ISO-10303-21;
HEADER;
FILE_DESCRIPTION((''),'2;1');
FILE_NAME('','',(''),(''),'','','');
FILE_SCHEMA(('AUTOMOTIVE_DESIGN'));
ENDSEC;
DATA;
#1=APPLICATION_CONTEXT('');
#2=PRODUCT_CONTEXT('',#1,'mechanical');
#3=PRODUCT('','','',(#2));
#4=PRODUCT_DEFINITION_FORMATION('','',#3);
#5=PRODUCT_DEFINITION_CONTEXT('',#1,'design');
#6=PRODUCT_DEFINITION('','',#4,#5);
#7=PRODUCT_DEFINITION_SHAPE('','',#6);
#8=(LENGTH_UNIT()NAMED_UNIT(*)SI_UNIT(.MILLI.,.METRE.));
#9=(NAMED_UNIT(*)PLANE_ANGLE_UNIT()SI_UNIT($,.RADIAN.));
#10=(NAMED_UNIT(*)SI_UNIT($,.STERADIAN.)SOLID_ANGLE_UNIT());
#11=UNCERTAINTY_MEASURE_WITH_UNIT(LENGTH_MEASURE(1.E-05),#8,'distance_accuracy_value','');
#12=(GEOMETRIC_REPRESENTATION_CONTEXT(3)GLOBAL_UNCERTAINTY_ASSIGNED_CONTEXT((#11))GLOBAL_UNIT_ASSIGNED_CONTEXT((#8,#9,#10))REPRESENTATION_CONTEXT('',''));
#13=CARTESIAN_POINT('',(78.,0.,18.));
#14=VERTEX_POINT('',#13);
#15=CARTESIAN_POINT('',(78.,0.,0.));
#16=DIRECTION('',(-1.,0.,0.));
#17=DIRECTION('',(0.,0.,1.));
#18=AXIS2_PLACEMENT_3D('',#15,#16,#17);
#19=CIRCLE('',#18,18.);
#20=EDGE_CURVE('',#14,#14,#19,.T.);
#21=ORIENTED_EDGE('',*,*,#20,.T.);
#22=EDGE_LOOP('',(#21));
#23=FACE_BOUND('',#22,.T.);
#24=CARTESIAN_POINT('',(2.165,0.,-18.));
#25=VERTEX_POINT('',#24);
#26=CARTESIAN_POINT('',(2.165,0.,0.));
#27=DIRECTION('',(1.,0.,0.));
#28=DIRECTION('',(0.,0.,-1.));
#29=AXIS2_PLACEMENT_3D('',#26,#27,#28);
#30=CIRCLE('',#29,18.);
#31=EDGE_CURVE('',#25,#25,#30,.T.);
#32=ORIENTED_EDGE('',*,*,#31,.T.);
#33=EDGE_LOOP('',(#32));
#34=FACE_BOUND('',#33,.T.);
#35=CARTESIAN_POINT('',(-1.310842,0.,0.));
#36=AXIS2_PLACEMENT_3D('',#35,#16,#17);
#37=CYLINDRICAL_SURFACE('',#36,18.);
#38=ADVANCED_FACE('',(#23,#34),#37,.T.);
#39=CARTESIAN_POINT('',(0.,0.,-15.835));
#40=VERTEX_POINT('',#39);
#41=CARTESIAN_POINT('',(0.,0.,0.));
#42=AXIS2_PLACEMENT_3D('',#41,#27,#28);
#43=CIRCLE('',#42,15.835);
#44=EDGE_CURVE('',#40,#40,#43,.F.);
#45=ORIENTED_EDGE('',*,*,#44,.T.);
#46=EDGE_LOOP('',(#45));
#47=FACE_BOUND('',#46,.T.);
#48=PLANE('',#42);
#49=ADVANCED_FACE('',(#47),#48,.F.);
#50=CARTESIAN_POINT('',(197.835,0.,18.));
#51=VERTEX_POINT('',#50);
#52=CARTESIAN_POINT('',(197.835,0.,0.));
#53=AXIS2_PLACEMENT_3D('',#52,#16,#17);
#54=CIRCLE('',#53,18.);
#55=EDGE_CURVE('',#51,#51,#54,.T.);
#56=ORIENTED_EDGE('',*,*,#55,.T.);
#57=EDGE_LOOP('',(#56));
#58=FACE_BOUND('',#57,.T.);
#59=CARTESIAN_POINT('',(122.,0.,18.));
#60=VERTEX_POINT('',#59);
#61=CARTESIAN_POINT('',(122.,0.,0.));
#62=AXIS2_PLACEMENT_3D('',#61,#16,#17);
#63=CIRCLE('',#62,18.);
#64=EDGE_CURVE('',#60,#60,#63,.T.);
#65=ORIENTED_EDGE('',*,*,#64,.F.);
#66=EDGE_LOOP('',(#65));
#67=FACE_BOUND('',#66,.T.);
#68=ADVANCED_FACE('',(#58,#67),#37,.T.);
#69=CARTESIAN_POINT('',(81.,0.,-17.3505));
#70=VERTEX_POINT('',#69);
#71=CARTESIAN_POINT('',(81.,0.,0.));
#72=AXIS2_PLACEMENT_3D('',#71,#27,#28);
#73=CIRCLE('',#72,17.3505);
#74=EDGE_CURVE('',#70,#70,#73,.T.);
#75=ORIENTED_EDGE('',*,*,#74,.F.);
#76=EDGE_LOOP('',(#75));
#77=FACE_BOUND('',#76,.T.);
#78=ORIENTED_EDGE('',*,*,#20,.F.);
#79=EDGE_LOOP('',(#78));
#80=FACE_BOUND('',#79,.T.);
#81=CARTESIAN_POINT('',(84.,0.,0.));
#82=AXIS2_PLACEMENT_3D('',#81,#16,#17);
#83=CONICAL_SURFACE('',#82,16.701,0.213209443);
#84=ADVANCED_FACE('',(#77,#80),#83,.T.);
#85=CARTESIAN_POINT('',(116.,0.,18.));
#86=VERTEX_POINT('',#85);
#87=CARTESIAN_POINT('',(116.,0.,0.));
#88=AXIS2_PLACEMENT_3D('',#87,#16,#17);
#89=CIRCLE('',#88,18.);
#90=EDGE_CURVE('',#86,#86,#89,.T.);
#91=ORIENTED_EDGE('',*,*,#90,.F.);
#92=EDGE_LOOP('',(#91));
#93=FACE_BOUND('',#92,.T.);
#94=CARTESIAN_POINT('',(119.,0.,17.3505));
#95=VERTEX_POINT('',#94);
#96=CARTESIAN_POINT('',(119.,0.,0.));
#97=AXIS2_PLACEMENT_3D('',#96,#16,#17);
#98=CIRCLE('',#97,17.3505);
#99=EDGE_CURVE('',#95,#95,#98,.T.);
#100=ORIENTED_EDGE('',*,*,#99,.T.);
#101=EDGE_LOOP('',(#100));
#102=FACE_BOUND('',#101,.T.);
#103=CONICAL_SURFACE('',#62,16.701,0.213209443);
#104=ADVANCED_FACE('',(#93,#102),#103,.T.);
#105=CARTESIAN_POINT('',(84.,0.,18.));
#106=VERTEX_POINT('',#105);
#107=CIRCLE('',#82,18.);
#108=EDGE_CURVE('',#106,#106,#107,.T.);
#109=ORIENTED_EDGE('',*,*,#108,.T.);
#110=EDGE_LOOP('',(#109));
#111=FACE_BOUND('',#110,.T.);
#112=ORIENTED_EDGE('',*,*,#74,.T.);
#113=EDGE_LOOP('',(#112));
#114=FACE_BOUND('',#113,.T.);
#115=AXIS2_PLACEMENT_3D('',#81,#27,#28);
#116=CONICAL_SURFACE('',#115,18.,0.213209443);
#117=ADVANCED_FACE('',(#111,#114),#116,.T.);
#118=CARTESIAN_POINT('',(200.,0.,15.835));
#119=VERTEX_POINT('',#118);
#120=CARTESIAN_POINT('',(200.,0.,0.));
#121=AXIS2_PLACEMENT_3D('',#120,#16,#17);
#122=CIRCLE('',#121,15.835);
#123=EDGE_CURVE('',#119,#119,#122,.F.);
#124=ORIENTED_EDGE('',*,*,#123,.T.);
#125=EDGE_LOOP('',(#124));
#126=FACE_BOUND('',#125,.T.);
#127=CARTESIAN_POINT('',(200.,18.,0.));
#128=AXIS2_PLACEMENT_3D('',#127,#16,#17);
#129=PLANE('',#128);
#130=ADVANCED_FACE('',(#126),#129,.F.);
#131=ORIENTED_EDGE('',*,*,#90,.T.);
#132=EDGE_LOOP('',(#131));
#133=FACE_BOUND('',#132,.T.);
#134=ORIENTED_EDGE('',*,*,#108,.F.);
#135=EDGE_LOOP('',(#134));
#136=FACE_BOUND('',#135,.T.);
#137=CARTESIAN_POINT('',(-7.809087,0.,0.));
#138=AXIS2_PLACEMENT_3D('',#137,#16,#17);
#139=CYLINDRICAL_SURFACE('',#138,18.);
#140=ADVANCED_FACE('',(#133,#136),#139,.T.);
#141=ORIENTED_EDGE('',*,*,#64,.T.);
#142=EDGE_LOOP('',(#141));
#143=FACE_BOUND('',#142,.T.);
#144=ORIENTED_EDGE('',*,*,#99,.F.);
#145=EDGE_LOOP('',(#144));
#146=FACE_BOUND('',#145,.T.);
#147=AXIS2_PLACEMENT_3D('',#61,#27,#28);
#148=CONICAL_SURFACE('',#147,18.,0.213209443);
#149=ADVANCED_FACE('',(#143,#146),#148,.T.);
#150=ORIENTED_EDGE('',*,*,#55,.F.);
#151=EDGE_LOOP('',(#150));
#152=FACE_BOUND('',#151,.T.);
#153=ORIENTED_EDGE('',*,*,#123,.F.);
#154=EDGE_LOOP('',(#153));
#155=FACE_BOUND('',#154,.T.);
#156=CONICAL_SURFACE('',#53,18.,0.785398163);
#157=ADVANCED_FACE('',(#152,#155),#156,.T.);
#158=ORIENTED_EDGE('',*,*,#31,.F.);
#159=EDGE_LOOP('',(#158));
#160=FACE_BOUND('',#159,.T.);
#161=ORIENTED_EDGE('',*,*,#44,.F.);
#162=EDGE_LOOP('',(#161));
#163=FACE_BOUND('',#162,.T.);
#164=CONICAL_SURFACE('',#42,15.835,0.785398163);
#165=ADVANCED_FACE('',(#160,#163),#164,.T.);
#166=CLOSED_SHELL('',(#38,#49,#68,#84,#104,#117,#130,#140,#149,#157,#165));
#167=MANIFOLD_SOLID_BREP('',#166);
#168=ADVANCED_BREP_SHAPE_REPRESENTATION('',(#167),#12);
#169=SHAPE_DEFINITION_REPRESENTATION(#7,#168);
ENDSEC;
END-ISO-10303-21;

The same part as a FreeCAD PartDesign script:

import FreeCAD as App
import Part
import Sketcher
from FreeCAD import Vector


def edges_at(feature, points):
    """Names of the edges that pass closest to the given points."""
    edges = feature.Shape.Edges
    near = lambda p: min(range(len(edges)), key=lambda i: edges[i].distToShape(Part.Vertex(*p))[0])
    return sorted({f"Edge{near(p) + 1}" for p in points})


def add_polygon(sketch, points):
    """Adds a closed chain of lines whose ends are joined by coincident constraints."""
    first, n = sketch.GeometryCount, len(points)
    for a, b in zip(points, points[1:] + points[:1]):
        sketch.addGeometry(Part.LineSegment(App.Vector(*a, 0), App.Vector(*b, 0)), False)
    for i in range(n):
        sketch.addConstraint(Sketcher.Constraint("Coincident", first + i, 2, first + (i + 1) % n, 1))

doc = App.newDocument("Part")
body = doc.addObject("PartDesign::Body", "Body")

sketch1 = doc.addObject("Sketcher::SketchObject", "Sketch")
body.addObject(sketch1)
sketch1.AttachmentSupport = (doc.XY_Plane, [""])
sketch1.MapMode = "FlatFace"
add_polygon(sketch1, [(0, 18), (0, 0), (200, 0), (200, 18), (122, 18), (116, 16.701), (84, 16.701), (78, 18)])
sketch1.addConstraint([
    Sketcher.Constraint("Vertical", 0),
    Sketcher.Constraint("Horizontal", 1),
    Sketcher.Constraint("Vertical", 2),
    Sketcher.Constraint("Horizontal", 3),
    Sketcher.Constraint("Horizontal", 5),
    Sketcher.Constraint("Horizontal", 7),
    Sketcher.Constraint("Coincident", 0, 2, -1, 1),
    Sketcher.Constraint("Horizontal", 3, 2, 6, 2),
    Sketcher.Constraint("Equal", 3, 7),
    Sketcher.Constraint("Equal", 4, 6),
    Sketcher.Constraint("DistanceX", 1, 1, 1, 2, 200.0),
    Sketcher.Constraint("DistanceX", 3, 2, 3, 1, 78.0),
    Sketcher.Constraint("DistanceX", 5, 2, 5, 1, 32.0),
    Sketcher.Constraint("DistanceY", 0, 2, 0, 1, 18.0),
    Sketcher.Constraint("DistanceY", -1, 1, 4, 2, 16.701),
])
revolution = doc.addObject("PartDesign::Revolution", "Revolution")
body.addObject(revolution)
revolution.Profile = sketch1
revolution.ReferenceAxis = (sketch1, ["H_Axis"])
revolution.Angle = 360
doc.recompute()

chamfer = doc.addObject("PartDesign::Chamfer", "Chamfer")
body.addObject(chamfer)
chamfer.Base = (revolution, edges_at(revolution, [(200, 0, -18), (0, 0, -18)]))
chamfer.Size = 2.165

sketch2 = doc.addObject("Sketcher::SketchObject", "Sketch001")
body.addObject(sketch2)
sketch2.AttachmentSupport = (doc.XY_Plane, [""])
sketch2.MapMode = "FlatFace"
add_polygon(sketch2, [(84, 18), (78, 16.701), (122, 16.701), (116, 18)])
sketch2.addConstraint([
    Sketcher.Constraint("Horizontal", 1),
    Sketcher.Constraint("Horizontal", 3),
    Sketcher.Constraint("Equal", 0, 2),
    Sketcher.Constraint("DistanceX", 1, 1, 1, 2, 44.0),
    Sketcher.Constraint("DistanceX", 3, 2, 3, 1, 32.0),
    Sketcher.Constraint("DistanceX", -1, 1, 0, 2, 78.0),
    Sketcher.Constraint("DistanceY", -1, 1, 2, 2, 18.0),
    Sketcher.Constraint("DistanceY", -1, 1, 0, 2, 16.701),
])
revolution2 = doc.addObject("PartDesign::Revolution", "Revolution001")
body.addObject(revolution2)
revolution2.Profile = sketch2
revolution2.ReferenceAxis = (sketch2, ["H_Axis"])
revolution2.Angle = 360

doc.recompute()
